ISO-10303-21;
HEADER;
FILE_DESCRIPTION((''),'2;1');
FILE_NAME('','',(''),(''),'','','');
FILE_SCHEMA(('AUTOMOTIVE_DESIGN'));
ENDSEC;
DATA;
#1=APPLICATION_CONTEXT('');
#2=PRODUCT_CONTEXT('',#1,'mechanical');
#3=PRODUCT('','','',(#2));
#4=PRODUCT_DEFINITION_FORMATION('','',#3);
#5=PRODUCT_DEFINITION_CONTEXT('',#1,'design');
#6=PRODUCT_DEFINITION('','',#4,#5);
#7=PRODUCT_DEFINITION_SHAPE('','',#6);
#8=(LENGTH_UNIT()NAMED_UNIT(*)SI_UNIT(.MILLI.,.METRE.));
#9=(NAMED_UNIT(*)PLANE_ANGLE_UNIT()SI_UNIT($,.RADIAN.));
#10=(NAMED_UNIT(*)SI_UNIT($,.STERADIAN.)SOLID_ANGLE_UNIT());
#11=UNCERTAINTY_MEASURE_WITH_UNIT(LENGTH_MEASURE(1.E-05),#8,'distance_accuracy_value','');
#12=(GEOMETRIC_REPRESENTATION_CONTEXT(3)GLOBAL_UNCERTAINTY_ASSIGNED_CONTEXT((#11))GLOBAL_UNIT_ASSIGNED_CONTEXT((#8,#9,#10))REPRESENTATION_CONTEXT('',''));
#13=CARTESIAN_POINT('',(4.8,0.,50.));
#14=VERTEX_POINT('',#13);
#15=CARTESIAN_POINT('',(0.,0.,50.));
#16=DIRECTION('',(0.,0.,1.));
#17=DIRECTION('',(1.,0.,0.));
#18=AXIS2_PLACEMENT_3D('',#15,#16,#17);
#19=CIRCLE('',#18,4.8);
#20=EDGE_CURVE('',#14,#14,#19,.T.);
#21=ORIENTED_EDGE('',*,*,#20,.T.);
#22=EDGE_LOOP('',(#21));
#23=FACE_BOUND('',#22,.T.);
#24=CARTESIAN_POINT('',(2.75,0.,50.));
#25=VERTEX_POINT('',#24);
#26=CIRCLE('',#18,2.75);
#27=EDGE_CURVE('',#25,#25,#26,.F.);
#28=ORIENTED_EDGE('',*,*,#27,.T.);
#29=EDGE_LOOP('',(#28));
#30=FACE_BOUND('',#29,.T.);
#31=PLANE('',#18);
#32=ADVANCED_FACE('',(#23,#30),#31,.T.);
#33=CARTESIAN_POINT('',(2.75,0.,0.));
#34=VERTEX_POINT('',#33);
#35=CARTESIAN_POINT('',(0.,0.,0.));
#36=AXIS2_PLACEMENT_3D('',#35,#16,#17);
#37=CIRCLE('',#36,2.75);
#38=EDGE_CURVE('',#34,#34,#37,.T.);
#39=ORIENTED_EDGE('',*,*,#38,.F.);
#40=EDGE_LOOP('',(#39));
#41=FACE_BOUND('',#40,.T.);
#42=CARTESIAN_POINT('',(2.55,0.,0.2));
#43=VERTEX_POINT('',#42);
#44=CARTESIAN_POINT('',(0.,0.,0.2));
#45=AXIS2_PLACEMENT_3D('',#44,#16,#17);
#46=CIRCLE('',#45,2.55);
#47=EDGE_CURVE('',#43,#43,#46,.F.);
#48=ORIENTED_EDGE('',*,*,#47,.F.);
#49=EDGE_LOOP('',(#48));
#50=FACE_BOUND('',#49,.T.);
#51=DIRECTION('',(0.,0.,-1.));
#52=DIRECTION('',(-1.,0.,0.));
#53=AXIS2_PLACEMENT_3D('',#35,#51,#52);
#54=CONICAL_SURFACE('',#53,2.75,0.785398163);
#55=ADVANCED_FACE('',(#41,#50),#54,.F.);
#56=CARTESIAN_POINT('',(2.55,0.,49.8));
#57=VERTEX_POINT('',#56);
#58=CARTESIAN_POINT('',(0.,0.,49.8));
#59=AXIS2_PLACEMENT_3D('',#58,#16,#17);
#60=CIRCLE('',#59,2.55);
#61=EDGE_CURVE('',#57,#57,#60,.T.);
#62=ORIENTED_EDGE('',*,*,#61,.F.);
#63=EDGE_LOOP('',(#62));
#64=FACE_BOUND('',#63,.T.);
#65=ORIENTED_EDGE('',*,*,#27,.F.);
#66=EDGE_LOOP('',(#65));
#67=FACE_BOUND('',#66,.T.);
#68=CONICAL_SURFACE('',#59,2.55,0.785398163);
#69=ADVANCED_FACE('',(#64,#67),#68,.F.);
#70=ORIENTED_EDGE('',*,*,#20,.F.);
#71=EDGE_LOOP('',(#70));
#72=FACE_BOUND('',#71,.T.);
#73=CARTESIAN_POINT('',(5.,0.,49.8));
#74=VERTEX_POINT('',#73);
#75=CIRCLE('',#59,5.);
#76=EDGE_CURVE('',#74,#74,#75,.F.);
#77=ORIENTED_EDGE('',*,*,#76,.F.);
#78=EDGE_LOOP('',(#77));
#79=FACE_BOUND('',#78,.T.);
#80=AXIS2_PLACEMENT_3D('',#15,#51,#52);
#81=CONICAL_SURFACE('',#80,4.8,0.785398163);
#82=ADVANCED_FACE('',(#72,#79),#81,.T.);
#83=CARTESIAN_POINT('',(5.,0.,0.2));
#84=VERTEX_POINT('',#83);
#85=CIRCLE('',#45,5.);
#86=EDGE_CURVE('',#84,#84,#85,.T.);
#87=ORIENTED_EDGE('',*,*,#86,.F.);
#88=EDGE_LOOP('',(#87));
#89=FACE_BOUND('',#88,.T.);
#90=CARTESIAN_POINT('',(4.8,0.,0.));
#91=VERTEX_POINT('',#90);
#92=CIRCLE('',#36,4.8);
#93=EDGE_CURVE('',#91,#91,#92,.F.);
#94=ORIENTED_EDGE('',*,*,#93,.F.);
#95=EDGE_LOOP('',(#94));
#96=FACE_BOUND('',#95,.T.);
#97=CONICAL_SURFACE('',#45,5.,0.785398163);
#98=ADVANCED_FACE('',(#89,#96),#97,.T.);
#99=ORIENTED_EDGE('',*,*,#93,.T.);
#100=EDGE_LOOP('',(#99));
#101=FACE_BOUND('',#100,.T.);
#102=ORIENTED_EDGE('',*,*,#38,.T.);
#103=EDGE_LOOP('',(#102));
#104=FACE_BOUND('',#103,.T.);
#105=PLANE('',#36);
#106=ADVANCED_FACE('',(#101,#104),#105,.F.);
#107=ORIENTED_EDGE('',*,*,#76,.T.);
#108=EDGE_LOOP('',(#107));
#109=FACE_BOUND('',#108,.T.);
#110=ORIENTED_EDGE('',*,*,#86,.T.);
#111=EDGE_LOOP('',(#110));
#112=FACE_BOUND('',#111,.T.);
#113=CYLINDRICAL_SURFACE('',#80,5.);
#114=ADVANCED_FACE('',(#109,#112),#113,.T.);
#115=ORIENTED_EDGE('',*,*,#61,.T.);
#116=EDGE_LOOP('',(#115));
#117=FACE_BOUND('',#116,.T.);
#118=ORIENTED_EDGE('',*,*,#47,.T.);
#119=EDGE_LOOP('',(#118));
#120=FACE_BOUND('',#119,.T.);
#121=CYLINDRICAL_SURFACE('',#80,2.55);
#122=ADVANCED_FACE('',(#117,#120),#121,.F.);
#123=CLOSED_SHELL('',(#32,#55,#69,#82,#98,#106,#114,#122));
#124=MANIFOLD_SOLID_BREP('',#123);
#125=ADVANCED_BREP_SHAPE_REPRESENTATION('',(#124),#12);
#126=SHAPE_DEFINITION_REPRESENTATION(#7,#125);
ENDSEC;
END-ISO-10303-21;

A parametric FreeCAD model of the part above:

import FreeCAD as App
import Part
import Sketcher
from FreeCAD import Vector


def edges_at(feature, points):
    """Names of the edges that pass closest to the given points."""
    edges = feature.Shape.Edges
    near = lambda p: min(range(len(edges)), key=lambda i: edges[i].distToShape(Part.Vertex(*p))[0])
    return sorted({f"Edge{near(p) + 1}" for p in points})

doc = App.newDocument("Part")
body = doc.addObject("PartDesign::Body", "Body")

# Sketch on XY plane
sketch1 = body.newObject("Sketcher::SketchObject", "Sketch")
sketch1.AttachmentSupport = (doc.getObject("XY_Plane"), [""])
sketch1.MapMode = "FlatFace"
sketch1.addGeometry(Part.Circle(Vector(0, 0, 0), Vector(0, 0, 1), 5), False)
sketch1.addGeometry(Part.Circle(Vector(0, 0, 0), Vector(0, 0, 1), 2.5), False)
sketch1.addConstraint(Sketcher.Constraint("Coincident", 0, 3, -1, 1))
sketch1.addConstraint(Sketcher.Constraint("Coincident", 1, 3, -1, 1))
sketch1.addConstraint(Sketcher.Constraint("Diameter", 0, 10.0))
sketch1.addConstraint(Sketcher.Constraint("Diameter", 1, 5.1))
pad1 = body.newObject("PartDesign::Pad", "Pad")
pad1.Profile = sketch1
pad1.Length = 50
doc.recompute()

chamfer = body.newObject("PartDesign::Chamfer", "Chamfer")
chamfer.Base = (pad1, edges_at(pad1, [
    (-5, 0, 0),
    (-5, 0, 50),
    (-2.55, 0, 0),
    (-2.55, 0, 50),
]))
chamfer.Size = 0.2

doc.recompute()
